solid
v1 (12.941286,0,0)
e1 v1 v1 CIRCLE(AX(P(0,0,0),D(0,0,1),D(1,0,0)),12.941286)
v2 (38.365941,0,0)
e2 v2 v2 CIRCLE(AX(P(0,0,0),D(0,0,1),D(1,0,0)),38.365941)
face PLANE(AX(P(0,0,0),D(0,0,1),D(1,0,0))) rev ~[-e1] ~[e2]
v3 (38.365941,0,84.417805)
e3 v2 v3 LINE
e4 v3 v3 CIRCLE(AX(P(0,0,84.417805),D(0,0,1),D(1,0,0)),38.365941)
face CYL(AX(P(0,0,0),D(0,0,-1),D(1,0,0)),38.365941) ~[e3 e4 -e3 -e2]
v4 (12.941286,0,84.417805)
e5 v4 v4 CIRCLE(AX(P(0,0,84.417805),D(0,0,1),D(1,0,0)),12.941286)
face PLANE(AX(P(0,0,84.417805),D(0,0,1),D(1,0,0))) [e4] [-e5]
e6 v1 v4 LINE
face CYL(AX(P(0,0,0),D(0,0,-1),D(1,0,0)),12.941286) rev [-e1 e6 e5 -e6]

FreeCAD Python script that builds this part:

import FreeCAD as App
import Part
import Sketcher

V = App.Vector
Q = App.Units.Quantity

doc = App.newDocument("Part")
body = doc.addObject("PartDesign::Body", "Body")

# Sketch on XY plane
sketch1 = doc.addObject("Sketcher::SketchObject", "Sketch")
body.addObject(sketch1)
sketch1.AttachmentSupport = (doc.XY_Plane, [""])
sketch1.MapMode = "FlatFace"
sketch1.addGeometry(Part.Circle(V(0, 0, 0), V(0, 0, 1), 38.365941), False)
sketch1.addGeometry(Part.Circle(V(0, 0, 0), V(0, 0, 1), 12.941286), False)
sketch1.addConstraint(Sketcher.Constraint("Coincident", 0, 3, -1, 1))
sketch1.addConstraint(Sketcher.Constraint("Coincident", 1, 3, -1, 1))
sketch1.addConstraint(Sketcher.Constraint("Diameter", 0, Q("76.731882 mm")))
sketch1.addConstraint(Sketcher.Constraint("Diameter", 1, Q("25.882572 mm")))
pad1 = doc.addObject("PartDesign::Pad", "Pad")
body.addObject(pad1)
pad1.Profile = sketch1
pad1.Length = 84.417805

doc.recompute()
